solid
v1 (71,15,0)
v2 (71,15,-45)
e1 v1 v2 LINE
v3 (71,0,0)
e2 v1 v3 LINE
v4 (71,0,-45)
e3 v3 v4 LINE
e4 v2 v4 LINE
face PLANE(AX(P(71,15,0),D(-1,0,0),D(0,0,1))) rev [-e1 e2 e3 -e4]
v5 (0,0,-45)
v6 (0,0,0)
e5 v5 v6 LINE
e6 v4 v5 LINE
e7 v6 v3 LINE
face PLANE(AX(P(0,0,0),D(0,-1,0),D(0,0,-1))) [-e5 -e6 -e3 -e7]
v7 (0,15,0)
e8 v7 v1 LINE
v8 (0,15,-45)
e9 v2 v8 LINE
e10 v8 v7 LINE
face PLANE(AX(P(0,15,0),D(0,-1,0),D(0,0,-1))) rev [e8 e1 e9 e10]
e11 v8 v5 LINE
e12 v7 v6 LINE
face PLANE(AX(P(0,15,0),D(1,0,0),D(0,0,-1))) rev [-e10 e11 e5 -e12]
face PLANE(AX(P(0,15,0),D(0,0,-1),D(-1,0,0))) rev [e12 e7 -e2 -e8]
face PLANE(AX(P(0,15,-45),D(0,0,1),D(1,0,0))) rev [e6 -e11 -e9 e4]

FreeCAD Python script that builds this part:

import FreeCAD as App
import Part
import Sketcher
from FreeCAD import Vector


def add_polygon(sketch, points):
    """Adds a closed chain of lines whose ends are joined by coincident constraints."""
    first, n = sketch.GeometryCount, len(points)
    for a, b in zip(points, points[1:] + points[:1]):
        sketch.addGeometry(Part.LineSegment(App.Vector(*a, 0), App.Vector(*b, 0)), False)
    for i in range(n):
        sketch.addConstraint(Sketcher.Constraint("Coincident", first + i, 2, first + (i + 1) % n, 1))

doc = App.newDocument("Part")
body = doc.addObject("PartDesign::Body", "Body")

sketch1 = body.newObject("Sketcher::SketchObject", "Sketch")
sketch1.AttachmentSupport = (doc.getObject("XZ_Plane"), [""])
sketch1.MapMode = "FlatFace"
add_polygon(sketch1, [(0, -45), (0, 0), (71, 0), (71, -45)])
sketch1.addConstraint([
    Sketcher.Constraint("Vertical", 0),
    Sketcher.Constraint("Horizontal", 1),
    Sketcher.Constraint("Vertical", 2),
    Sketcher.Constraint("Horizontal", 3),
    Sketcher.Constraint("Coincident", 0, 2, -1, 1),
    Sketcher.Constraint("DistanceX", 1, 1, 1, 2, 71.0),
    Sketcher.Constraint("DistanceY", 0, 1, 0, 2, 45.0),
])
pad1 = body.newObject("PartDesign::Pad", "Pad")
pad1.Profile = sketch1
pad1.Length = 15
pad1.Reversed = True

doc.recompute()
